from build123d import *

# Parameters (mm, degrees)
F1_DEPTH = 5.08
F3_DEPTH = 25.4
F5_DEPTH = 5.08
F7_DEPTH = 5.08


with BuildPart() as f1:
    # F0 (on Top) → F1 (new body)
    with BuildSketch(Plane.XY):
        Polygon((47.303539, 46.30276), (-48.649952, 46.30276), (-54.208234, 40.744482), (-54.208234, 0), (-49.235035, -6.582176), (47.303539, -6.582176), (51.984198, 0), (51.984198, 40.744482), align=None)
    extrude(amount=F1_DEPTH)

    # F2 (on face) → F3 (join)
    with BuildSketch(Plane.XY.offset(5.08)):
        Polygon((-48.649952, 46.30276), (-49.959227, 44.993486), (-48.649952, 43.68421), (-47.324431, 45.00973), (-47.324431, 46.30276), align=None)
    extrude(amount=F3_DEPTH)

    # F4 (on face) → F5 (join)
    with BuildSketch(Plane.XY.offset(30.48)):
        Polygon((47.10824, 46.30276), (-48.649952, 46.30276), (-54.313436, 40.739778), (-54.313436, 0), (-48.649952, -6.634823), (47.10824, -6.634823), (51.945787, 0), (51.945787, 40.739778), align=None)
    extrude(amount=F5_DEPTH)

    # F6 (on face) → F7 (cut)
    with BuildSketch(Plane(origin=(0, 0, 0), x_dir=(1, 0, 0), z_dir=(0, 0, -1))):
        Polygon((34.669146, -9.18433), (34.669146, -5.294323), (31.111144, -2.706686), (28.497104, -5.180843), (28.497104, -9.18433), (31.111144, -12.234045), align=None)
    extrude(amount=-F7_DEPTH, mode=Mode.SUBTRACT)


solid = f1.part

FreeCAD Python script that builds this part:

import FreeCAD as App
import Part
import Sketcher

V = App.Vector
Q = App.Units.Quantity

doc = App.newDocument("Part")
body = doc.addObject("PartDesign::Body", "Body")

# Sketch on XY plane
sketch1 = doc.addObject("Sketcher::SketchObject", "Sketch")
body.addObject(sketch1)
sketch1.AttachmentSupport = (doc.XY_Plane, [""])
sketch1.MapMode = "FlatFace"
sketch1.addGeometry([
    Part.LineSegment(V(47, 46, 0), V(-49, 46, 0)),  # 0
    Part.LineSegment(V(-49, 46, 0), V(-54, 41, 0)),  # 1
    Part.LineSegment(V(-54, 41, 0), V(-54, 0, 0)),  # 2
    Part.LineSegment(V(-54, 0, 0), V(-49, -7, 0)),  # 3
    Part.LineSegment(V(-49, -7, 0), V(47, -7, 0)),  # 4
    Part.LineSegment(V(47, -7, 0), V(52, 0, 0)),  # 5
    Part.LineSegment(V(52, 0, 0), V(52, 41, 0)),  # 6
    Part.LineSegment(V(52, 41, 0), V(47, 46, 0)),  # 7
], False)
sketch1.addConstraint([
    Sketcher.Constraint("Coincident", 0, 2, 1, 1),
    Sketcher.Constraint("Coincident", 1, 2, 2, 1),
    Sketcher.Constraint("Coincident", 2, 2, 3, 1),
    Sketcher.Constraint("Coincident", 3, 2, 4, 1),
    Sketcher.Constraint("Coincident", 4, 2, 5, 1),
    Sketcher.Constraint("Coincident", 5, 2, 6, 1),
    Sketcher.Constraint("Coincident", 6, 2, 7, 1),
    Sketcher.Constraint("Coincident", 7, 2, 0, 1),
    Sketcher.Constraint("Horizontal", 0),
    Sketcher.Constraint("Vertical", 2),
    Sketcher.Constraint("Horizontal", 4),
    Sketcher.Constraint("Vertical", 6),
    Sketcher.Constraint("PointOnObject", 2, 2, -1),
    Sketcher.Constraint("PointOnObject", 5, 2, -1),
    Sketcher.Constraint("Horizontal", 1, 2, 6, 2),
    Sketcher.Constraint("Vertical", 4, 2, 7, 2),
    Sketcher.Constraint("DistanceX", 0, 2, 0, 1, Q("95.953491 mm")),
    Sketcher.Constraint("DistanceY", 2, 2, 2, 1, Q("40.744482 mm")),
    Sketcher.Constraint("DistanceX", 2, 2, 3, 2, Q("4.973199 mm")),
    Sketcher.Constraint("Distance", 7, Q("7.266569 mm")),
    Sketcher.Constraint("DistanceX", 4, 1, 4, 2, Q("96.538574 mm")),
    Sketcher.Constraint("DistanceY", -1, 1, 0, 2, Q("46.30276 mm")),
    Sketcher.Constraint("DistanceX", -1, 1, 4, 2, Q("47.303539 mm")),
    Sketcher.Constraint("Distance", 3, Q("8.249712 mm")),
])
pad1 = doc.addObject("PartDesign::Pad", "Pad")
body.addObject(pad1)
pad1.Profile = sketch1
pad1.Length = Q("0.2 in")

# Sketch on XY plane
sketch2 = doc.addObject("Sketcher::SketchObject", "Sketch001")
body.addObject(sketch2)
sketch2.AttachmentSupport = (doc.XY_Plane, [""])
sketch2.MapMode = "FlatFace"
sketch2.AttachmentOffset = App.Placement(V(0, 0, 0.2 * 25.4), App.Rotation())
sketch2.addGeometry([
    Part.LineSegment(V(-48.6, 46.3, 0), V(-50, 45, 0)),  # 0
    Part.LineSegment(V(-50, 45, 0), V(-48.6, 43.7, 0)),  # 1
    Part.LineSegment(V(-48.6, 43.7, 0), V(-47.3, 45, 0)),  # 2
    Part.LineSegment(V(-47.3, 45, 0), V(-47.3, 46.3, 0)),  # 3
    Part.LineSegment(V(-47.3, 46.3, 0), V(-48.6, 46.3, 0)),  # 4
], False)
sketch2.addConstraint([
    Sketcher.Constraint("Coincident", 0, 2, 1, 1),
    Sketcher.Constraint("Coincident", 1, 2, 2, 1),
    Sketcher.Constraint("Coincident", 2, 2, 3, 1),
    Sketcher.Constraint("Coincident", 3, 2, 4, 1),
    Sketcher.Constraint("Coincident", 4, 2, 0, 1),
    Sketcher.Constraint("Vertical", 3),
    Sketcher.Constraint("Horizontal", 4),
    Sketcher.Constraint("Perpendicular", 0, 1),
    Sketcher.Constraint("Perpendicular", 1, 2),
    Sketcher.Constraint("Vertical", 1, 2, 4, 2),
    Sketcher.Constraint("Equal", 0, 1),
    Sketcher.Constraint("DistanceX", 4, 2, 4, 1, Q("1.325521 mm")),
    Sketcher.Constraint("DistanceY", 3, 1, 3, 2, Q("1.29303 mm")),
    Sketcher.Constraint("DistanceY", -1, 1, 1, 2, Q("43.68421 mm")),
    Sketcher.Constraint("DistanceX", 2, 2, -1, 1, Q("47.324431 mm")),
])
pad2 = doc.addObject("PartDesign::Pad", "Pad001")
body.addObject(pad2)
pad2.Profile = sketch2
pad2.Length = Q("1 in")

# Sketch on XY plane
sketch3 = doc.addObject("Sketcher::SketchObject", "Sketch002")
body.addObject(sketch3)
sketch3.AttachmentSupport = (doc.XY_Plane, [""])
sketch3.MapMode = "FlatFace"
sketch3.AttachmentOffset = App.Placement(V(0, 0, 1.2 * 25.4), App.Rotation())
sketch3.addGeometry([
    Part.LineSegment(V(47, 46, 0), V(-49, 46, 0)),  # 0
    Part.LineSegment(V(-49, 46, 0), V(-54, 41, 0)),  # 1
    Part.LineSegment(V(-54, 41, 0), V(-54, 0, 0)),  # 2
    Part.LineSegment(V(-54, 0, 0), V(-49, -7, 0)),  # 3
    Part.LineSegment(V(-49, -7, 0), V(47, -7, 0)),  # 4
    Part.LineSegment(V(47, -7, 0), V(52, 0, 0)),  # 5
    Part.LineSegment(V(52, 0, 0), V(52, 41, 0)),  # 6
    Part.LineSegment(V(52, 41, 0), V(47, 46, 0)),  # 7
], False)
sketch3.addConstraint([
    Sketcher.Constraint("Coincident", 0, 2, 1, 1),
    Sketcher.Constraint("Coincident", 1, 2, 2, 1),
    Sketcher.Constraint("Coincident", 2, 2, 3, 1),
    Sketcher.Constraint("Coincident", 3, 2, 4, 1),
    Sketcher.Constraint("Coincident", 4, 2, 5, 1),
    Sketcher.Constraint("Coincident", 5, 2, 6, 1),
    Sketcher.Constraint("Coincident", 6, 2, 7, 1),
    Sketcher.Constraint("Coincident", 7, 2, 0, 1),
    Sketcher.Constraint("Horizontal", 0),
    Sketcher.Constraint("Vertical", 2),
    Sketcher.Constraint("Horizontal", 4),
    Sketcher.Constraint("Vertical", 6),
    Sketcher.Constraint("PointOnObject", 2, 2, -1),
    Sketcher.Constraint("PointOnObject", 5, 2, -1),
    Sketcher.Constraint("Horizontal", 1, 2, 6, 2),
    Sketcher.Constraint("Vertical", 0, 2, 3, 2),
    Sketcher.Constraint("Vertical", 4, 2, 7, 2),
    Sketcher.Constraint("DistanceY", 3, 2, 1, 2, Q("47.374601 mm")),
    Sketcher.Constraint("Distance", 1, Q("7.938628 mm")),
    Sketcher.Constraint("DistanceX", 0, 2, 0, 1, Q("95.758192 mm")),
    Sketcher.Constraint("DistanceY", 2, 2, 2, 1, Q("40.739778 mm")),
    Sketcher.Constraint("DistanceY", -1, 1, 0, 2, Q("46.30276 mm")),
    Sketcher.Constraint("DistanceX", -1, 1, 4, 2, Q("47.10824 mm")),
    Sketcher.Constraint("DistanceX", 3, 2, 5, 2, Q("100.595739 mm")),
])
pad3 = doc.addObject("PartDesign::Pad", "Pad002")
body.addObject(pad3)
pad3.Profile = sketch3
pad3.Length = Q("0.2 in")

# Sketch on XY plane
sketch4 = doc.addObject("Sketcher::SketchObject", "Sketch003")
body.addObject(sketch4)
sketch4.AttachmentSupport = (doc.XY_Plane, [""])
sketch4.MapMode = "FlatFace"
sketch4.addGeometry([
    Part.LineSegment(V(34.7, 9.2, 0), V(34.7, 5.3, 0)),  # 0
    Part.LineSegment(V(34.7, 5.3, 0), V(31.1, 2.7, 0)),  # 1
    Part.LineSegment(V(31.1, 2.7, 0), V(28.5, 5.2, 0)),  # 2
    Part.LineSegment(V(28.5, 5.2, 0), V(28.5, 9.2, 0)),  # 3
    Part.LineSegment(V(28.5, 9.2, 0), V(31.1, 12.2, 0)),  # 4
    Part.LineSegment(V(31.1, 12.2, 0), V(34.7, 9.2, 0)),  # 5
], False)
sketch4.addConstraint([
    Sketcher.Constraint("Coincident", 0, 2, 1, 1),
    Sketcher.Constraint("Coincident", 1, 2, 2, 1),
    Sketcher.Constraint("Coincident", 2, 2, 3, 1),
    Sketcher.Constraint("Coincident", 3, 2, 4, 1),
    Sketcher.Constraint("Coincident", 4, 2, 5, 1),
    Sketcher.Constraint("Coincident", 5, 2, 0, 1),
    Sketcher.Constraint("Vertical", 0),
    Sketcher.Constraint("Vertical", 3),
    Sketcher.Constraint("Perpendicular", 4, 5),
    Sketcher.Constraint("Horizontal", 3, 2, 5, 2),
    Sketcher.Constraint("Vertical", 1, 2, 4, 2),
    Sketcher.Constraint("DistanceX", 1, 2, 0, 2, Q("3.558002 mm")),
    Sketcher.Constraint("DistanceY", 2, 2, 4, 2, Q("7.053202 mm")),
    Sketcher.Constraint("Distance", 1, Q("4.399459 mm")),
    Sketcher.Constraint("Distance", 4, Q("4.016711 mm")),
    Sketcher.Constraint("DistanceY", 0, 2, 0, 1, Q("3.890007 mm")),
    Sketcher.Constraint("DistanceY", -1, 1, 3, 2, Q("9.18433 mm")),
    Sketcher.Constraint("DistanceX", -1, 1, 0, 2, Q("34.669146 mm")),
])
pocket1 = doc.addObject("PartDesign::Pocket", "Pocket")
body.addObject(pocket1)
pocket1.Profile = sketch4
pocket1.Length = Q("0.2 in")
pocket1.Reversed = True

doc.recompute()
